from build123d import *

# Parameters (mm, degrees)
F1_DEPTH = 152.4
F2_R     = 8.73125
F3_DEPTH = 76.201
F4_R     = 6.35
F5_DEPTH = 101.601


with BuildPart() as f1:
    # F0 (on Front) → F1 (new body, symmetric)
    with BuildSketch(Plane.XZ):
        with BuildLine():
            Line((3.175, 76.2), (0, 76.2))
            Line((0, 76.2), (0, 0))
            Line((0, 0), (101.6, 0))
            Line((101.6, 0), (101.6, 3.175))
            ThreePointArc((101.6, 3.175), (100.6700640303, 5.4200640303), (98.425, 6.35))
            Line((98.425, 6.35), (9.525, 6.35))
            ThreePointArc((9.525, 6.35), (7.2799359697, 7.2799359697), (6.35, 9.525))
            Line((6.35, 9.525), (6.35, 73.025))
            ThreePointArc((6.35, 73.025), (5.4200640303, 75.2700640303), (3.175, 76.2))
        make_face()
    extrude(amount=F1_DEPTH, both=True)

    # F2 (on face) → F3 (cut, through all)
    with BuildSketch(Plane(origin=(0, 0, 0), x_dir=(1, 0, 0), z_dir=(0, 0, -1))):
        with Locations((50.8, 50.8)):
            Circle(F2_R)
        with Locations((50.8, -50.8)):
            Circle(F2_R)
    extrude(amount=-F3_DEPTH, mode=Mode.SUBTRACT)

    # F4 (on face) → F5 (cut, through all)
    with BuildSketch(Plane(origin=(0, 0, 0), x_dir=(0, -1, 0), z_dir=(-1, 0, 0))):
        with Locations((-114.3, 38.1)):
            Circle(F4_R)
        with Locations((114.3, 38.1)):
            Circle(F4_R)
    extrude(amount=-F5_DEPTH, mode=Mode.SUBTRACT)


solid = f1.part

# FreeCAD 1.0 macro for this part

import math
import FreeCAD as App
import Part
import Sketcher

V = App.Vector
Q = App.Units.Quantity

doc = App.newDocument("Part")
params = doc.addObject("Spreadsheet::Sheet", "Params")
for row, (alias, value) in enumerate([
    ("sketch1_width", "4 in"),
    ("sketch1_height", "3 in"),
    ("sketch1_width2", "3.5 in"),
    ("sketch1_radius", "0.125 in"),
    ("pad1_length", "12 in"),
    ("sketch2_diameter", "0.6875 in"),
    ("sketch3_diameter", "0.5 in"),
], start=1):
    params.set(f"A{row}", alias)
    params.set(f"B{row}", "=" + value)
    params.setAlias(f"B{row}", alias)

body = doc.addObject("PartDesign::Body", "Body")

# Sketch on XZ plane
sketch1 = body.newObject("Sketcher::SketchObject", "Sketch")
sketch1.AttachmentSupport = (doc.getObject("XZ_Plane"), [""])
sketch1.MapMode = "FlatFace"
sketch1.addGeometry([
    Part.LineSegment(V(3.2, 76.2, 0), V(0, 76.2, 0)),  # 0
    Part.LineSegment(V(0, 76.2, 0), V(0, 0, 0)),  # 1
    Part.LineSegment(V(0, 0, 0), V(101.6, 0, 0)),  # 2
    Part.LineSegment(V(101.6, 0, 0), V(101.6, 3.2, 0)),  # 3
    Part.ArcOfCircle(Part.Circle(V(98.4, 3.2, 0), V(0, 0, 1), 3.2), math.radians(0), math.radians(90)),  # 4
    Part.LineSegment(V(98.4, 6.3, 0), V(9.5, 6.3, 0)),  # 5
    Part.ArcOfCircle(Part.Circle(V(9.5, 9.5, 0), V(0, 0, 1), 3.2), math.radians(180), math.radians(270)),  # 6
    Part.LineSegment(V(6.3, 9.5, 0), V(6.3, 73, 0)),  # 7
    Part.ArcOfCircle(Part.Circle(V(3.2, 73, 0), V(0, 0, 1), 3.2), math.radians(0), math.radians(90)),  # 8
], False)
sketch1.addConstraint([
    Sketcher.Constraint("Coincident", 0, 2, 1, 1),
    Sketcher.Constraint("Coincident", 1, 2, 2, 1),
    Sketcher.Constraint("Coincident", 2, 2, 3, 1),
    Sketcher.Constraint("Tangent", 3, 2, 4, 1),
    Sketcher.Constraint("Tangent", 4, 2, 5, 1),
    Sketcher.Constraint("Tangent", 5, 2, 6, 2),
    Sketcher.Constraint("Tangent", 6, 1, 7, 1),
    Sketcher.Constraint("Tangent", 7, 2, 8, 1),
    Sketcher.Constraint("Tangent", 8, 2, 0, 1),
    Sketcher.Constraint("Horizontal", 0),
    Sketcher.Constraint("Vertical", 1),
    Sketcher.Constraint("Horizontal", 2),
    Sketcher.Constraint("Vertical", 3),
    Sketcher.Constraint("Horizontal", 5),
    Sketcher.Constraint("Vertical", 7),
    Sketcher.Constraint("Coincident", 1, 2, -1, 1),
    Sketcher.Constraint("Equal", 4, 6),
    Sketcher.Constraint("Equal", 6, 8),
    Sketcher.Constraint("Equal", 0, 3),
    Sketcher.Constraint("DistanceX", 2, 1, 2, 2, Q("4 in")),
    Sketcher.Constraint("DistanceY", 1, 2, 1, 1, Q("3 in")),
    Sketcher.Constraint("DistanceX", 5, 2, 5, 1, Q("3.5 in")),
    Sketcher.Constraint("Radius", 4, Q("0.125 in")),
])
sketch1.setExpression("Constraints[19]", "Params.sketch1_width")
sketch1.setExpression("Constraints[20]", "Params.sketch1_height")
sketch1.setExpression("Constraints[21]", "Params.sketch1_width2")
sketch1.setExpression("Constraints[22]", "Params.sketch1_radius")
pad1 = body.newObject("PartDesign::Pad", "Pad")
pad1.Profile = sketch1
pad1.setExpression("Length", "Params.pad1_length")
pad1.Midplane = True

# Sketch on XY plane
sketch2 = body.newObject("Sketcher::SketchObject", "Sketch001")
sketch2.AttachmentSupport = (doc.getObject("XY_Plane"), [""])
sketch2.MapMode = "FlatFace"
sketch2.addGeometry([
    Part.Circle(V(51, -51, 0), V(0, 0, 1), 9),
    Part.Circle(V(51, 51, 0), V(0, 0, 1), 9),
], False)
sketch2.addConstraint([
    Sketcher.Constraint("Equal", 0, 1),
    Sketcher.Constraint("Symmetric", 0, 3, 1, 3, -1),
    Sketcher.Constraint("Diameter", 0, Q("0.6875 in")),
    Sketcher.Constraint("DistanceX", -1, 1, 0, 3, Q("2 in")),
    Sketcher.Constraint("DistanceY", 0, 3, -1, 1, Q("2 in")),
])
sketch2.setExpression("Constraints[2]", "Params.sketch2_diameter")
pocket1 = body.newObject("PartDesign::Pocket", "Pocket")
pocket1.Profile = sketch2
pocket1.Type = "ThroughAll"
pocket1.Reversed = True

# Sketch on YZ plane
sketch3 = body.newObject("Sketcher::SketchObject", "Sketch002")
sketch3.AttachmentSupport = (doc.getObject("YZ_Plane"), [""])
sketch3.MapMode = "FlatFace"
sketch3.addGeometry([
    Part.Circle(V(114, 38, 0), V(0, 0, 1), 6),
    Part.Circle(V(-114, 38, 0), V(0, 0, 1), 6),
], False)
sketch3.addConstraint([
    Sketcher.Constraint("Equal", 0, 1),
    Sketcher.Constraint("Symmetric", 0, 3, 1, 3, -2),
    Sketcher.Constraint("Diameter", 0, Q("0.5 in")),
    Sketcher.Constraint("DistanceX", 1, 3, 0, 3, Q("9 in")),
    Sketcher.Constraint("DistanceY", -1, 1, 0, 3, Q("1.5 in")),
])
sketch3.setExpression("Constraints[2]", "Params.sketch3_diameter")
pocket2 = body.newObject("PartDesign::Pocket", "Pocket001")
pocket2.Profile = sketch3
pocket2.Type = "ThroughAll"
pocket2.Reversed = True

doc.recompute()
